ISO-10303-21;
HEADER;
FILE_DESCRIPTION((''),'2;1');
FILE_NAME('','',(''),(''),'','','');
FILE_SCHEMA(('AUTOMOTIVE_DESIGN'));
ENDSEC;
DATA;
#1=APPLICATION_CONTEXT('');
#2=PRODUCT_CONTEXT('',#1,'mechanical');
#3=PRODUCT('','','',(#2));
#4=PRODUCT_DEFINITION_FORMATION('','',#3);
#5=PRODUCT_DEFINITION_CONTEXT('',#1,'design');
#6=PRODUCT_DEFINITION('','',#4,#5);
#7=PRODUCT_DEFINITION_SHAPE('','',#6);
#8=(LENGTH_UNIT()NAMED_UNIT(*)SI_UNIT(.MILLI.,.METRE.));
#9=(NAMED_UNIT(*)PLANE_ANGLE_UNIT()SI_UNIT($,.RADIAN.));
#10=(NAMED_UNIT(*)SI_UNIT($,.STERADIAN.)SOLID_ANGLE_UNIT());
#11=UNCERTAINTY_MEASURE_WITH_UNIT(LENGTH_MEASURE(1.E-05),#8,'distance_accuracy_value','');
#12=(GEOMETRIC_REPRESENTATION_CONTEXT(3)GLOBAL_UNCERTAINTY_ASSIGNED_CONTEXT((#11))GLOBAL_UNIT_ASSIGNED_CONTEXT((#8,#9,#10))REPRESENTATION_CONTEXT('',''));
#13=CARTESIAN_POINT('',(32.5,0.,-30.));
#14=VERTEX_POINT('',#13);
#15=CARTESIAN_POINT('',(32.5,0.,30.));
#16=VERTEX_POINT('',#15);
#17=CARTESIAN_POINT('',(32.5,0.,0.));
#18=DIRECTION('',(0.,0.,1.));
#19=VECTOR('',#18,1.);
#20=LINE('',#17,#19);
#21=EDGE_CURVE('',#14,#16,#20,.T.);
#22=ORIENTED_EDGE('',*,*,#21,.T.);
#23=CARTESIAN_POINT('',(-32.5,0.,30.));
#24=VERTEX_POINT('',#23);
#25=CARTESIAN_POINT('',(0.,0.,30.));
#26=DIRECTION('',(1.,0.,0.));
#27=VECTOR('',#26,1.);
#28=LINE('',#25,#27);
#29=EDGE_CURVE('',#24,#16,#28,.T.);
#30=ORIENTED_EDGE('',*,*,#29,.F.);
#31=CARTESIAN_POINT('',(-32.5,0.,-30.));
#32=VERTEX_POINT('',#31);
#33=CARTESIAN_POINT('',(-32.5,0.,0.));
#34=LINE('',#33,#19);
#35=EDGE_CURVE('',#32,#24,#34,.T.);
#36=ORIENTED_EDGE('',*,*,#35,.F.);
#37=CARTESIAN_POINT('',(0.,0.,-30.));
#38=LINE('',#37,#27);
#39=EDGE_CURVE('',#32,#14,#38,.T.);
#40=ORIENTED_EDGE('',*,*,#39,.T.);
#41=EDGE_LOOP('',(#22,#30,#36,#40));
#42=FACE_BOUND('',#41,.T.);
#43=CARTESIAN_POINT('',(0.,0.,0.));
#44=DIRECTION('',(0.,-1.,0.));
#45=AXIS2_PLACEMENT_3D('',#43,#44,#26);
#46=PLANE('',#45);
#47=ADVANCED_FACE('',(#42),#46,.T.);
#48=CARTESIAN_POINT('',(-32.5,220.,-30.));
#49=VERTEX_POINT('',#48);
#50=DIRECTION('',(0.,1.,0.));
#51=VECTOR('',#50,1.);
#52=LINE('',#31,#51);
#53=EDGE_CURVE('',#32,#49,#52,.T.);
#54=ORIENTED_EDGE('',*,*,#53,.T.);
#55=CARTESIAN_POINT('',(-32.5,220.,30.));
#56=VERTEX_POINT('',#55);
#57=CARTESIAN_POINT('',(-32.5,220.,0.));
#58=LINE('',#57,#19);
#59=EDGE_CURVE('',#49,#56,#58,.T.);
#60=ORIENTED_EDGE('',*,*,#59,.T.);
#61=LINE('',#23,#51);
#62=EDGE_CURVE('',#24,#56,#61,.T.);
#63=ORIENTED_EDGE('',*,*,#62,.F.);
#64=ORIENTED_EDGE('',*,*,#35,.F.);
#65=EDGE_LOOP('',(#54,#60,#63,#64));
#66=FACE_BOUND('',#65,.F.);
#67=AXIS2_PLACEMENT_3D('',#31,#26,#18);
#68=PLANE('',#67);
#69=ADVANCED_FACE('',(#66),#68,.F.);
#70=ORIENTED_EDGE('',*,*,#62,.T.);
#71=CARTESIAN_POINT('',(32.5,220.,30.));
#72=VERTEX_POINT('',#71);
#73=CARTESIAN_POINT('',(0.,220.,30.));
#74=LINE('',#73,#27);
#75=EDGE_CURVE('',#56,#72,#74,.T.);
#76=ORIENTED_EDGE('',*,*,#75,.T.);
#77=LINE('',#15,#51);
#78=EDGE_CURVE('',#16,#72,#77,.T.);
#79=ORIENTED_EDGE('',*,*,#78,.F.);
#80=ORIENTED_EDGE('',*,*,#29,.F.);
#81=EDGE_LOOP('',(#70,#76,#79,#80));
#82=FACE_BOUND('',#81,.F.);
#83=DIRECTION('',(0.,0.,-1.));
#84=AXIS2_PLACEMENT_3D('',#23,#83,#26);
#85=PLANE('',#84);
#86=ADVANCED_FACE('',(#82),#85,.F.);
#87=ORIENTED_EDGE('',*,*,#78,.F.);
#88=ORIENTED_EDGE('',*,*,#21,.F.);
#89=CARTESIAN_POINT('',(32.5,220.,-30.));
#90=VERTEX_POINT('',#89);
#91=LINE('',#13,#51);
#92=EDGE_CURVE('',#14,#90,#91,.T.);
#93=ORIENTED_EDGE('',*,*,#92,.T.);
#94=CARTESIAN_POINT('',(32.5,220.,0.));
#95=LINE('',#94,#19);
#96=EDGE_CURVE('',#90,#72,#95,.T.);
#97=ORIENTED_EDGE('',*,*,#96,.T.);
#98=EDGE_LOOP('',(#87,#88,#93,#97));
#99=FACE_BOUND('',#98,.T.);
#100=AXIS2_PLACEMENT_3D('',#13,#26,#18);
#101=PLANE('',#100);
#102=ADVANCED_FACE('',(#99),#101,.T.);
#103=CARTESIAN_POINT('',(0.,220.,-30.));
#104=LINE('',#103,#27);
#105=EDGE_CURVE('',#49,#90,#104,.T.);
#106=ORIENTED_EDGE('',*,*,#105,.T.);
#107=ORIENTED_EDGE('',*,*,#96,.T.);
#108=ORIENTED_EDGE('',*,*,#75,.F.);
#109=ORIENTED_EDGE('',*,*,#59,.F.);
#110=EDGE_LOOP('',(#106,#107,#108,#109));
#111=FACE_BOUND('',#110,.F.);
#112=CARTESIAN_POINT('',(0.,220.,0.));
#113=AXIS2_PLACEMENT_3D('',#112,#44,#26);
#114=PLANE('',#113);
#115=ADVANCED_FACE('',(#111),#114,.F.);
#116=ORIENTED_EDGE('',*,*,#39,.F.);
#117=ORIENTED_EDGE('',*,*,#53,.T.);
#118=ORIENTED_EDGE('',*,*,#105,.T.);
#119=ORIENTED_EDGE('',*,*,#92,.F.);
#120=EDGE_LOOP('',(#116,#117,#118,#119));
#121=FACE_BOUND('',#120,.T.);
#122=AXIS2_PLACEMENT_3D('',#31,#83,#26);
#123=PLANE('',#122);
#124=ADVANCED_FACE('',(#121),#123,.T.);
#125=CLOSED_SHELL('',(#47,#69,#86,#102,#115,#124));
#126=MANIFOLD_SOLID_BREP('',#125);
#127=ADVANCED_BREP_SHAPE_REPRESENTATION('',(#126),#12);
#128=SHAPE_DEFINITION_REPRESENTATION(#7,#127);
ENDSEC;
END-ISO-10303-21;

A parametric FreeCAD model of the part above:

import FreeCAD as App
import Part
import Sketcher

V = App.Vector

doc = App.newDocument("Part")
body = doc.addObject("PartDesign::Body", "Body")

sketch1 = body.newObject("Sketcher::SketchObject", "Sketch")
sketch1.AttachmentSupport = (doc.getObject("XY_Plane"), [""])
sketch1.MapMode = "FlatFace"
sketch1.addGeometry([
    Part.LineSegment(V(-32.5, 30, 0), V(-32.5, -30, 0)),
    Part.LineSegment(V(-32.5, -30, 0), V(32.5, -30, 0)),
    Part.LineSegment(V(32.5, -30, 0), V(32.5, 30, 0)),
    Part.LineSegment(V(32.5, 30, 0), V(-32.5, 30, 0)),
], False)
sketch1.addConstraint([
    Sketcher.Constraint("Coincident", 0, 2, 1, 1),
    Sketcher.Constraint("Coincident", 1, 2, 2, 1),
    Sketcher.Constraint("Coincident", 2, 2, 3, 1),
    Sketcher.Constraint("Coincident", 3, 2, 0, 1),
    Sketcher.Constraint("Vertical", 0),
    Sketcher.Constraint("Horizontal", 1),
    Sketcher.Constraint("Vertical", 2),
    Sketcher.Constraint("Horizontal", 3),
    Sketcher.Constraint("Symmetric", 0, 2, 2, 2, -1, 1),
    Sketcher.Constraint("DistanceX", 1, 1, 1, 2, 65.0),
    Sketcher.Constraint("DistanceY", 0, 2, 0, 1, 60.0),
])
pad1 = body.newObject("PartDesign::Pad", "Pad")
pad1.Profile = sketch1
pad1.Length = 220
pad1.Reversed = True
body2 = doc.addObject("PartDesign::Body", "Body001")
doc.recompute()

body.Placement = App.Placement(V(0, 0, 0), App.Rotation(V(1, 0, 0), 90))
boolean = body2.newObject("PartDesign::Boolean", "Boolean")
boolean.Type = "Fuse"
boolean.addObjects([body])

doc.recompute()
